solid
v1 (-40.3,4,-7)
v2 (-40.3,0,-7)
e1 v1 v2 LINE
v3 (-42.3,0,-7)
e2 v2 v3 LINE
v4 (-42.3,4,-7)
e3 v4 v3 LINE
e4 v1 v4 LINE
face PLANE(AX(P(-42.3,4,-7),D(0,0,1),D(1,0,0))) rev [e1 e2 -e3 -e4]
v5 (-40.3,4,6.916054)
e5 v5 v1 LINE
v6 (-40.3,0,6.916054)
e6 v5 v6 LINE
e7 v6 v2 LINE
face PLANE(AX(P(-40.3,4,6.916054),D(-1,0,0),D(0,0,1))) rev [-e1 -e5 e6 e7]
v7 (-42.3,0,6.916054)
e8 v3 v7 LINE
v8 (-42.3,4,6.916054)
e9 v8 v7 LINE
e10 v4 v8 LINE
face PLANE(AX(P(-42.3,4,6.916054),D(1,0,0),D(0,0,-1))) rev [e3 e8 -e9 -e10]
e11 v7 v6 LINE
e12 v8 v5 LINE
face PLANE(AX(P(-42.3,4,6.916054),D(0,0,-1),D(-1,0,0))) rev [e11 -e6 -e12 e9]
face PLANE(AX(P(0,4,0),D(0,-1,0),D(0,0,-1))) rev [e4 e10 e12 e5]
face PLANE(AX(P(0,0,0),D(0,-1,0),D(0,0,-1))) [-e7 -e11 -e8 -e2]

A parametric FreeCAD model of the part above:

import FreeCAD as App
import Part
import Sketcher

V = App.Vector

doc = App.newDocument("Part")
body = doc.addObject("PartDesign::Body", "Body")

# Sketch on XZ plane
sketch1 = body.newObject("Sketcher::SketchObject", "Sketch")
sketch1.AttachmentSupport = (doc.getObject("XZ_Plane"), [""])
sketch1.MapMode = "FlatFace"
sketch1.addGeometry([
    Part.LineSegment(V(-42.3, -7, 0), V(-42.3, 6.9, 0)),
    Part.LineSegment(V(-42.3, 6.9, 0), V(-40.3, 6.9, 0)),
    Part.LineSegment(V(-40.3, 6.9, 0), V(-40.3, -7, 0)),
    Part.LineSegment(V(-40.3, -7, 0), V(-42.3, -7, 0)),
], False)
sketch1.addConstraint([
    Sketcher.Constraint("Coincident", 0, 2, 1, 1),
    Sketcher.Constraint("Coincident", 1, 2, 2, 1),
    Sketcher.Constraint("Coincident", 2, 2, 3, 1),
    Sketcher.Constraint("Coincident", 3, 2, 0, 1),
    Sketcher.Constraint("Vertical", 0),
    Sketcher.Constraint("Horizontal", 1),
    Sketcher.Constraint("Vertical", 2),
    Sketcher.Constraint("Horizontal", 3),
    Sketcher.Constraint("DistanceX", 1, 1, 1, 2, 2.0),
    Sketcher.Constraint("DistanceY", 2, 2, -1, 1, 7.0),
    Sketcher.Constraint("DistanceX", 0, 2, -1, 1, 42.3),
    Sketcher.Constraint("DistanceY", 0, 1, 0, 2, 13.916054),
])
pad1 = body.newObject("PartDesign::Pad", "Pad")
pad1.Profile = sketch1
pad1.Length = 4
pad1.Reversed = True

doc.recompute()
